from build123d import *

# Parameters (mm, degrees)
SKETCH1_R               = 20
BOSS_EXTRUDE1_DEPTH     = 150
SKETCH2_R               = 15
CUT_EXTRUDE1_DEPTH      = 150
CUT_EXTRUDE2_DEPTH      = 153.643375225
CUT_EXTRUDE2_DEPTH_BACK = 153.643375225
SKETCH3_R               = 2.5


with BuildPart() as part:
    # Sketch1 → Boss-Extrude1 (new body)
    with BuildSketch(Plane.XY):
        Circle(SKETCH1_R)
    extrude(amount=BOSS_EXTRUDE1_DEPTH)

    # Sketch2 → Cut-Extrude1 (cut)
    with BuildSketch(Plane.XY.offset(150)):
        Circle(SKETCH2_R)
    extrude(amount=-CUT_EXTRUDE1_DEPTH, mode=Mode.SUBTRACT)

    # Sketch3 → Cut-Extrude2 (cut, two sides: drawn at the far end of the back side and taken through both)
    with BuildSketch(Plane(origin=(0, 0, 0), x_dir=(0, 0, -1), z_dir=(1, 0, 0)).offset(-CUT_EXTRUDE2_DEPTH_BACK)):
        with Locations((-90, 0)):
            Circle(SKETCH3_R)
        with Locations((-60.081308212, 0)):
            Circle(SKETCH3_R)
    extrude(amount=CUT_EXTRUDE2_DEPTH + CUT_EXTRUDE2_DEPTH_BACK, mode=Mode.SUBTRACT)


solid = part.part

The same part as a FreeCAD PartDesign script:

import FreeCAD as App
import Part
import Sketcher

doc = App.newDocument("Part")
body = doc.addObject("PartDesign::Body", "Body")

sketch1 = body.newObject("Sketcher::SketchObject", "Sketch")
sketch1.AttachmentSupport = (doc.getObject("XY_Plane"), [""])
sketch1.MapMode = "FlatFace"
sketch1.addGeometry(Part.Circle(App.Vector(0, 0, 0), App.Vector(0, 0, 1), 20), False)
sketch1.addConstraint(Sketcher.Constraint("Coincident", 0, 3, -1, 1))
sketch1.addConstraint(Sketcher.Constraint("Diameter", 0, 40.0))
pad1 = body.newObject("PartDesign::Pad", "Pad")
pad1.Profile = sketch1
pad1.Length = 150

sketch2 = body.newObject("Sketcher::SketchObject", "Sketch001")
sketch2.AttachmentSupport = (doc.getObject("XY_Plane"), [""])
sketch2.MapMode = "FlatFace"
sketch2.AttachmentOffset = App.Placement(App.Vector(0, 0, 150), App.Rotation())
sketch2.addGeometry(Part.Circle(App.Vector(0, 0, 0), App.Vector(0, 0, 1), 15), False)
sketch2.addConstraint(Sketcher.Constraint("Coincident", 0, 3, -1, 1))
sketch2.addConstraint(Sketcher.Constraint("Diameter", 0, 30.0))
pocket1 = body.newObject("PartDesign::Pocket", "Pocket")
pocket1.Profile = sketch2
pocket1.Length = 150

sketch3 = body.newObject("Sketcher::SketchObject", "Sketch002")
sketch3.AttachmentSupport = (doc.getObject("YZ_Plane"), [""])
sketch3.MapMode = "FlatFace"
sketch3.addGeometry(Part.Circle(App.Vector(0, 90, 0), App.Vector(0, 0, 1), 2.5), False)
sketch3.addGeometry(Part.Circle(App.Vector(0, 60.081308, 0), App.Vector(0, 0, 1), 2.5), False)
sketch3.addConstraint(Sketcher.Constraint("Equal", 0, 1))
sketch3.addConstraint(Sketcher.Constraint("PointOnObject", 0, 3, -2))
sketch3.addConstraint(Sketcher.Constraint("PointOnObject", 1, 3, -2))
sketch3.addConstraint(Sketcher.Constraint("Diameter", 0, 5.0))
sketch3.addConstraint(Sketcher.Constraint("DistanceY", -1, 1, 0, 3, 90.0))
sketch3.addConstraint(Sketcher.Constraint("DistanceY", -1, 1, 1, 3, 60.081308))
pocket2 = body.newObject("PartDesign::Pocket", "Pocket001")
pocket2.Profile = sketch3
pocket2.Type = "ThroughAll"
pocket2.Midplane = True

doc.recompute()
